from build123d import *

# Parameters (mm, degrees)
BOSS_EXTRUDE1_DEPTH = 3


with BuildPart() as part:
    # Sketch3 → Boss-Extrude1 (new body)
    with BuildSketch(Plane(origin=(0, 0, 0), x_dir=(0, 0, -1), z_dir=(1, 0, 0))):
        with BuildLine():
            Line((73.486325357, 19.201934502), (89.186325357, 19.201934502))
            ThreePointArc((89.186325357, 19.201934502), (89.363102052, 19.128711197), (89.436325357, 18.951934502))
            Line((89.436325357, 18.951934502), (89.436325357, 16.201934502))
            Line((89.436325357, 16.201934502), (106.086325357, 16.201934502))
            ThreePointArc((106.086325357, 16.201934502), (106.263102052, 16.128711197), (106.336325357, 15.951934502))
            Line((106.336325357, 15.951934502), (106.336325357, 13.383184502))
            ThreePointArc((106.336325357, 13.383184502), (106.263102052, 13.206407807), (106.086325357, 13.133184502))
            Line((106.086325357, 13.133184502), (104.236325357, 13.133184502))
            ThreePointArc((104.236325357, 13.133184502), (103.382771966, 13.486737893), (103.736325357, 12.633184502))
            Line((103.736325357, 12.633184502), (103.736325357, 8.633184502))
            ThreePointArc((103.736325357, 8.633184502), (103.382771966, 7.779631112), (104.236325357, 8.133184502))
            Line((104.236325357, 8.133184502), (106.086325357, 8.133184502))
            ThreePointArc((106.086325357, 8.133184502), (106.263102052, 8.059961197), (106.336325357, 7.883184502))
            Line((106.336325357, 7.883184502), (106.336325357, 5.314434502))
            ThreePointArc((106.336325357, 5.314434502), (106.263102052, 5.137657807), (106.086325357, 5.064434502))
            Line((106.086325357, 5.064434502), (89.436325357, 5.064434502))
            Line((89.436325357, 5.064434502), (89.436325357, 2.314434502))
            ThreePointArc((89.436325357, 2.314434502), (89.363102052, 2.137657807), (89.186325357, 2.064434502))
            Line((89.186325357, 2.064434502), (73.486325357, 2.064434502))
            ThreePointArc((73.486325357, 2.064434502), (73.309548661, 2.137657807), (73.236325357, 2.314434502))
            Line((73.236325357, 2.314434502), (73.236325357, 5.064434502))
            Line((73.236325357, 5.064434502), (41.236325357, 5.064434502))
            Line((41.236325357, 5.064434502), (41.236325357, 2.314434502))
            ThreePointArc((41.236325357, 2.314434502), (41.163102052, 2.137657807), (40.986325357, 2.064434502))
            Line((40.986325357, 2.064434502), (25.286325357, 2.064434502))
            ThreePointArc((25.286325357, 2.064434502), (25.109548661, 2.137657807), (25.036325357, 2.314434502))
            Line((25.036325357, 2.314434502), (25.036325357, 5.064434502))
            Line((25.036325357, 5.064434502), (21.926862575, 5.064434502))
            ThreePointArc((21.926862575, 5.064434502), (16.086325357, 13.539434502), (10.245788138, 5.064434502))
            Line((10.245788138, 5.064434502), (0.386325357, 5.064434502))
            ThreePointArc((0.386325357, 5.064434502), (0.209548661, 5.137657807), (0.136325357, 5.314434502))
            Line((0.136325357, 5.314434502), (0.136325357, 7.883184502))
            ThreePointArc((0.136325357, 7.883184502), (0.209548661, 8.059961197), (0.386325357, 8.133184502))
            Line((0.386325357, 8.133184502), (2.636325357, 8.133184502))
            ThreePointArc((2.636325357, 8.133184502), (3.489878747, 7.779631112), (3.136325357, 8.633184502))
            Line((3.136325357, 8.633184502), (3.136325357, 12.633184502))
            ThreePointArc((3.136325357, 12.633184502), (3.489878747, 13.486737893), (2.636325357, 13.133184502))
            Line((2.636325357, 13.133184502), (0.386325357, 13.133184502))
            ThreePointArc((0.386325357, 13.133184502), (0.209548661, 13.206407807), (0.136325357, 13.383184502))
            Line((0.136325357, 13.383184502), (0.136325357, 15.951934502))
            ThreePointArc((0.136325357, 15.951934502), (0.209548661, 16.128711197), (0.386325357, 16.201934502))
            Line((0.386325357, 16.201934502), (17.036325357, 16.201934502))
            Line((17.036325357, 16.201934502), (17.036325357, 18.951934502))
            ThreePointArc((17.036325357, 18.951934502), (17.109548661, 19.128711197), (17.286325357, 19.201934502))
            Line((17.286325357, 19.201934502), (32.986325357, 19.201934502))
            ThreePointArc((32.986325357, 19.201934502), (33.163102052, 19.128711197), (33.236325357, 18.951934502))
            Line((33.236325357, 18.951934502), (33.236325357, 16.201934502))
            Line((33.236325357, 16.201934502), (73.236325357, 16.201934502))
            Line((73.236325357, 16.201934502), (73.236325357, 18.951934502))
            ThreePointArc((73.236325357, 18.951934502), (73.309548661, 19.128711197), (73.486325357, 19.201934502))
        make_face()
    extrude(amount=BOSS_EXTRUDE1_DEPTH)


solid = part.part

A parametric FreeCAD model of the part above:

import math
import FreeCAD as App
import Part
import Sketcher

V = App.Vector

doc = App.newDocument("Part")
params = doc.addObject("Spreadsheet::Sheet", "Params")
for row, (alias, value) in enumerate([
    ("sketch1_radius", "0.5 mm"),
    ("sketch1_width", "4 mm"),
    ("sketch1_height", "40 mm"),
    ("sketch1_height2", "32 mm"),
    ("sketch1_radius2", "0.25 mm"),
    ("pad1_length", "3 mm"),
], start=1):
    params.set(f"A{row}", alias)
    params.set(f"B{row}", "=" + value)
    params.setAlias(f"B{row}", alias)

body = doc.addObject("PartDesign::Body", "Body")

sketch1 = body.newObject("Sketcher::SketchObject", "Sketch")
sketch1.AttachmentSupport = (doc.getObject("YZ_Plane"), [""])
sketch1.MapMode = "FlatFace"
sketch1.addGeometry(Part.LineSegment(V(19.2, -89.19, 0), V(19.2, -73.49, 0)), False)
sketch1.addGeometry(Part.ArcOfCircle(Part.Circle(V(18.95, -73.49, 0), V(0, 0, 1), 0.25), math.radians(0), math.radians(90)), False)
sketch1.addGeometry(Part.LineSegment(V(18.95, -73.24, 0), V(16.2, -73.24, 0)), False)
sketch1.addGeometry(Part.LineSegment(V(16.2, -73.24, 0), V(16.2, -33.24, 0)), False)
sketch1.addGeometry(Part.LineSegment(V(16.2, -33.24, 0), V(18.95, -33.24, 0)), False)
sketch1.addGeometry(Part.ArcOfCircle(Part.Circle(V(18.95, -32.99, 0), V(0, 0, 1), 0.25), math.radians(-90), math.radians(0)), False)
sketch1.addGeometry(Part.LineSegment(V(19.2, -32.99, 0), V(19.2, -17.29, 0)), False)
sketch1.addGeometry(Part.ArcOfCircle(Part.Circle(V(18.95, -17.29, 0), V(0, 0, 1), 0.25), math.radians(0), math.radians(90)), False)
sketch1.addGeometry(Part.LineSegment(V(18.95, -17.04, 0), V(16.2, -17.04, 0)), False)
sketch1.addGeometry(Part.LineSegment(V(16.2, -17.04, 0), V(16.2, -0.39, 0)), False)
sketch1.addGeometry(Part.ArcOfCircle(Part.Circle(V(15.95, -0.39, 0), V(0, 0, 1), 0.25), math.radians(0), math.radians(90)), False)
sketch1.addGeometry(Part.LineSegment(V(15.95, -0.14, 0), V(13.38, -0.14, 0)), False)
sketch1.addGeometry(Part.ArcOfCircle(Part.Circle(V(13.38, -0.39, 0), V(0, 0, 1), 0.25), math.radians(90), math.radians(180)), False)
sketch1.addGeometry(Part.LineSegment(V(13.13, -0.39, 0), V(13.13, -2.64, 0)), False)
sketch1.addGeometry(Part.ArcOfCircle(Part.Circle(V(13.13, -3.14, 0), V(0, 0, 1), 0.5), math.radians(180), math.radians(450)), False)
sketch1.addGeometry(Part.LineSegment(V(12.63, -3.14, 0), V(8.63, -3.14, 0)), False)
sketch1.addGeometry(Part.ArcOfCircle(Part.Circle(V(8.13, -3.14, 0), V(0, 0, 1), 0.5), math.radians(90), math.radians(360)), False)
sketch1.addGeometry(Part.LineSegment(V(8.13, -2.64, 0), V(8.13, -0.39, 0)), False)
sketch1.addGeometry(Part.ArcOfCircle(Part.Circle(V(7.88, -0.39, 0), V(0, 0, 1), 0.25), math.radians(0), math.radians(90)), False)
sketch1.addGeometry(Part.LineSegment(V(7.88, -0.14, 0), V(5.31, -0.14, 0)), False)
sketch1.addGeometry(Part.ArcOfCircle(Part.Circle(V(5.31, -0.39, 0), V(0, 0, 1), 0.25), math.radians(90), math.radians(180)), False)
sketch1.addGeometry(Part.LineSegment(V(5.06, -0.39, 0), V(5.06, -10.25, 0)), False)
sketch1.addGeometry(Part.ArcOfCircle(Part.Circle(V(7.29, -16.09, 0), V(0, 0, 1), 6.25), math.radians(-111), math.radians(111)), False)
sketch1.addGeometry(Part.LineSegment(V(5.06, -21.93, 0), V(5.06, -25.04, 0)), False)
sketch1.addGeometry(Part.LineSegment(V(5.06, -25.04, 0), V(2.31, -25.04, 0)), False)
sketch1.addGeometry(Part.ArcOfCircle(Part.Circle(V(2.31, -25.29, 0), V(0, 0, 1), 0.25), math.radians(90), math.radians(180)), False)
sketch1.addGeometry(Part.LineSegment(V(2.06, -25.29, 0), V(2.06, -40.99, 0)), False)
sketch1.addGeometry(Part.ArcOfCircle(Part.Circle(V(2.31, -40.99, 0), V(0, 0, 1), 0.25), math.radians(-180), math.radians(-90)), False)
sketch1.addGeometry(Part.LineSegment(V(2.31, -41.24, 0), V(5.06, -41.24, 0)), False)
sketch1.addGeometry(Part.LineSegment(V(5.06, -41.24, 0), V(5.06, -73.24, 0)), False)
sketch1.addGeometry(Part.LineSegment(V(5.06, -73.24, 0), V(2.31, -73.24, 0)), False)
sketch1.addGeometry(Part.ArcOfCircle(Part.Circle(V(2.31, -73.49, 0), V(0, 0, 1), 0.25), math.radians(90), math.radians(180)), False)
sketch1.addGeometry(Part.LineSegment(V(2.06, -73.49, 0), V(2.06, -89.19, 0)), False)
sketch1.addGeometry(Part.ArcOfCircle(Part.Circle(V(2.31, -89.19, 0), V(0, 0, 1), 0.25), math.radians(-180), math.radians(-90)), False)
sketch1.addGeometry(Part.LineSegment(V(2.31, -89.44, 0), V(5.06, -89.44, 0)), False)
sketch1.addGeometry(Part.LineSegment(V(5.06, -89.44, 0), V(5.06, -106.09, 0)), False)
sketch1.addGeometry(Part.ArcOfCircle(Part.Circle(V(5.31, -106.09, 0), V(0, 0, 1), 0.25), math.radians(-180), math.radians(-90)), False)
sketch1.addGeometry(Part.LineSegment(V(5.31, -106.34, 0), V(7.88, -106.34, 0)), False)
sketch1.addGeometry(Part.ArcOfCircle(Part.Circle(V(7.88, -106.09, 0), V(0, 0, 1), 0.25), math.radians(-90), math.radians(0)), False)
sketch1.addGeometry(Part.LineSegment(V(8.13, -106.09, 0), V(8.13, -104.24, 0)), False)
sketch1.addGeometry(Part.ArcOfCircle(Part.Circle(V(8.13, -103.74, 0), V(0, 0, 1), 0.5), math.radians(0), math.radians(270)), False)
sketch1.addGeometry(Part.LineSegment(V(8.63, -103.74, 0), V(12.63, -103.74, 0)), False)
sketch1.addGeometry(Part.ArcOfCircle(Part.Circle(V(13.13, -103.74, 0), V(0, 0, 1), 0.5), math.radians(-90), math.radians(180)), False)
sketch1.addGeometry(Part.LineSegment(V(13.13, -104.24, 0), V(13.13, -106.09, 0)), False)
sketch1.addGeometry(Part.ArcOfCircle(Part.Circle(V(13.38, -106.09, 0), V(0, 0, 1), 0.25), math.radians(-180), math.radians(-90)), False)
sketch1.addGeometry(Part.LineSegment(V(13.38, -106.34, 0), V(15.95, -106.34, 0)), False)
sketch1.addGeometry(Part.ArcOfCircle(Part.Circle(V(15.95, -106.09, 0), V(0, 0, 1), 0.25), math.radians(-90), math.radians(0)), False)
sketch1.addGeometry(Part.LineSegment(V(16.2, -106.09, 0), V(16.2, -89.44, 0)), False)
sketch1.addGeometry(Part.LineSegment(V(16.2, -89.44, 0), V(18.95, -89.44, 0)), False)
sketch1.addGeometry(Part.ArcOfCircle(Part.Circle(V(18.95, -89.19, 0), V(0, 0, 1), 0.25), math.radians(-90), math.radians(0)), False)
sketch1.addConstraint(Sketcher.Constraint("Tangent", 0, 2, 1, 1))
sketch1.addConstraint(Sketcher.Constraint("Tangent", 1, 2, 2, 1))
sketch1.addConstraint(Sketcher.Constraint("Coincident", 2, 2, 3, 1))
sketch1.addConstraint(Sketcher.Constraint("Coincident", 3, 2, 4, 1))
sketch1.addConstraint(Sketcher.Constraint("Tangent", 4, 2, 5, 1))
sketch1.addConstraint(Sketcher.Constraint("Tangent", 5, 2, 6, 1))
sketch1.addConstraint(Sketcher.Constraint("Tangent", 6, 2, 7, 1))
sketch1.addConstraint(Sketcher.Constraint("Tangent", 7, 2, 8, 1))
sketch1.addConstraint(Sketcher.Constraint("Coincident", 8, 2, 9, 1))
sketch1.addConstraint(Sketcher.Constraint("Tangent", 9, 2, 10, 1))
sketch1.addConstraint(Sketcher.Constraint("Tangent", 10, 2, 11, 1))
sketch1.addConstraint(Sketcher.Constraint("Tangent", 11, 2, 12, 1))
sketch1.addConstraint(Sketcher.Constraint("Tangent", 12, 2, 13, 1))
sketch1.addConstraint(Sketcher.Constraint("Coincident", 13, 2, 14, 2))
sketch1.addConstraint(Sketcher.Constraint("Coincident", 14, 1, 15, 1))
sketch1.addConstraint(Sketcher.Constraint("Coincident", 15, 2, 16, 2))
sketch1.addConstraint(Sketcher.Constraint("Coincident", 16, 1, 17, 1))
sketch1.addConstraint(Sketcher.Constraint("Tangent", 17, 2, 18, 1))
sketch1.addConstraint(Sketcher.Constraint("Tangent", 18, 2, 19, 1))
sketch1.addConstraint(Sketcher.Constraint("Tangent", 19, 2, 20, 1))
sketch1.addConstraint(Sketcher.Constraint("Tangent", 20, 2, 21, 1))
sketch1.addConstraint(Sketcher.Constraint("Coincident", 21, 2, 22, 2))
sketch1.addConstraint(Sketcher.Constraint("Coincident", 22, 1, 23, 1))
sketch1.addConstraint(Sketcher.Constraint("Coincident", 23, 2, 24, 1))
sketch1.addConstraint(Sketcher.Constraint("Tangent", 24, 2, 25, 1))
sketch1.addConstraint(Sketcher.Constraint("Tangent", 25, 2, 26, 1))
sketch1.addConstraint(Sketcher.Constraint("Tangent", 26, 2, 27, 1))
sketch1.addConstraint(Sketcher.Constraint("Tangent", 27, 2, 28, 1))
sketch1.addConstraint(Sketcher.Constraint("Coincident", 28, 2, 29, 1))
sketch1.addConstraint(Sketcher.Constraint("Coincident", 29, 2, 30, 1))
sketch1.addConstraint(Sketcher.Constraint("Tangent", 30, 2, 31, 1))
sketch1.addConstraint(Sketcher.Constraint("Tangent", 31, 2, 32, 1))
sketch1.addConstraint(Sketcher.Constraint("Tangent", 32, 2, 33, 1))
sketch1.addConstraint(Sketcher.Constraint("Tangent", 33, 2, 34, 1))
sketch1.addConstraint(Sketcher.Constraint("Coincident", 34, 2, 35, 1))
sketch1.addConstraint(Sketcher.Constraint("Tangent", 35, 2, 36, 1))
sketch1.addConstraint(Sketcher.Constraint("Tangent", 36, 2, 37, 1))
sketch1.addConstraint(Sketcher.Constraint("Tangent", 37, 2, 38, 1))
sketch1.addConstraint(Sketcher.Constraint("Tangent", 38, 2, 39, 1))
sketch1.addConstraint(Sketcher.Constraint("Coincident", 39, 2, 40, 2))
sketch1.addConstraint(Sketcher.Constraint("Coincident", 40, 1, 41, 1))
sketch1.addConstraint(Sketcher.Constraint("Coincident", 41, 2, 42, 2))
sketch1.addConstraint(Sketcher.Constraint("Coincident", 42, 1, 43, 1))
sketch1.addConstraint(Sketcher.Constraint("Tangent", 43, 2, 44, 1))
sketch1.addConstraint(Sketcher.Constraint("Tangent", 44, 2, 45, 1))
sketch1.addConstraint(Sketcher.Constraint("Tangent", 45, 2, 46, 1))
sketch1.addConstraint(Sketcher.Constraint("Tangent", 46, 2, 47, 1))
sketch1.addConstraint(Sketcher.Constraint("Coincident", 47, 2, 48, 1))
sketch1.addConstraint(Sketcher.Constraint("Tangent", 48, 2, 49, 1))
sketch1.addConstraint(Sketcher.Constraint("Tangent", 49, 2, 0, 1))
sketch1.addConstraint(Sketcher.Constraint("Vertical", 0))
sketch1.addConstraint(Sketcher.Constraint("Horizontal", 2))
sketch1.addConstraint(Sketcher.Constraint("Vertical", 3))
sketch1.addConstraint(Sketcher.Constraint("Horizontal", 4))
sketch1.addConstraint(Sketcher.Constraint("Vertical", 6))
sketch1.addConstraint(Sketcher.Constraint("Horizontal", 8))
sketch1.addConstraint(Sketcher.Constraint("Vertical", 9))
sketch1.addConstraint(Sketcher.Constraint("Horizontal", 11))
sketch1.addConstraint(Sketcher.Constraint("Vertical", 13))
sketch1.addConstraint(Sketcher.Constraint("Horizontal", 15))
sketch1.addConstraint(Sketcher.Constraint("Vertical", 17))
sketch1.addConstraint(Sketcher.Constraint("Horizontal", 19))
sketch1.addConstraint(Sketcher.Constraint("Vertical", 21))
sketch1.addConstraint(Sketcher.Constraint("Vertical", 23))
sketch1.addConstraint(Sketcher.Constraint("Horizontal", 24))
sketch1.addConstraint(Sketcher.Constraint("Vertical", 26))
sketch1.addConstraint(Sketcher.Constraint("Horizontal", 28))
sketch1.addConstraint(Sketcher.Constraint("Vertical", 29))
sketch1.addConstraint(Sketcher.Constraint("Horizontal", 30))
sketch1.addConstraint(Sketcher.Constraint("Vertical", 32))
sketch1.addConstraint(Sketcher.Constraint("Horizontal", 34))
sketch1.addConstraint(Sketcher.Constraint("Vertical", 35))
sketch1.addConstraint(Sketcher.Constraint("Horizontal", 37))
sketch1.addConstraint(Sketcher.Constraint("Vertical", 39))
sketch1.addConstraint(Sketcher.Constraint("Horizontal", 41))
sketch1.addConstraint(Sketcher.Constraint("Vertical", 43))
sketch1.addConstraint(Sketcher.Constraint("Horizontal", 45))
sketch1.addConstraint(Sketcher.Constraint("Vertical", 47))
sketch1.addConstraint(Sketcher.Constraint("Horizontal", 48))
sketch1.addConstraint(Sketcher.Constraint("Equal", 1, 5))
sketch1.addConstraint(Sketcher.Constraint("Equal", 5, 7))
sketch1.addConstraint(Sketcher.Constraint("Equal", 7, 10))
sketch1.addConstraint(Sketcher.Constraint("Equal", 10, 12))
sketch1.addConstraint(Sketcher.Constraint("Equal", 14, 16))
sketch1.addConstraint(Sketcher.Constraint("Equal", 12, 18))
sketch1.addConstraint(Sketcher.Constraint("Equal", 18, 20))
sketch1.addConstraint(Sketcher.Constraint("Equal", 20, 25))
sketch1.addConstraint(Sketcher.Constraint("Equal", 25, 27))
sketch1.addConstraint(Sketcher.Constraint("Equal", 27, 31))
sketch1.addConstraint(Sketcher.Constraint("Equal", 31, 33))
sketch1.addConstraint(Sketcher.Constraint("Equal", 33, 36))
sketch1.addConstraint(Sketcher.Constraint("Equal", 36, 38))
sketch1.addConstraint(Sketcher.Constraint("Equal", 16, 40))
sketch1.addConstraint(Sketcher.Constraint("Equal", 40, 42))
sketch1.addConstraint(Sketcher.Constraint("Equal", 38, 44))
sketch1.addConstraint(Sketcher.Constraint("Equal", 44, 46))
sketch1.addConstraint(Sketcher.Constraint("Equal", 46, 49))
sketch1.addConstraint(Sketcher.Constraint("Horizontal", 14, 3, 16, 3))
sketch1.addConstraint(Sketcher.Constraint("Horizontal", 12, 3, 18, 3))
sketch1.addConstraint(Sketcher.Constraint("Horizontal", 1, 3, 31, 3))
sketch1.addConstraint(Sketcher.Constraint("Horizontal", 40, 3, 42, 3))
sketch1.addConstraint(Sketcher.Constraint("Horizontal", 38, 3, 44, 3))
sketch1.addConstraint(Sketcher.Constraint("Horizontal", 33, 3, 49, 3))
sketch1.addConstraint(Sketcher.Constraint("Horizontal", 16, 3, 14, 1))
sketch1.addConstraint(Sketcher.Constraint("Horizontal", 42, 3, 40, 1))
sketch1.addConstraint(Sketcher.Constraint("Vertical", 1, 3, 5, 3))
sketch1.addConstraint(Sketcher.Constraint("Vertical", 27, 3, 31, 3))
sketch1.addConstraint(Sketcher.Constraint("Vertical", 20, 3, 36, 3))
sketch1.addConstraint(Sketcher.Constraint("Vertical", 18, 3, 38, 3))
sketch1.addConstraint(Sketcher.Constraint("Vertical", 16, 3, 40, 3))
sketch1.addConstraint(Sketcher.Constraint("Vertical", 14, 3, 42, 3))
sketch1.addConstraint(Sketcher.Constraint("Vertical", 12, 3, 44, 3))
sketch1.addConstraint(Sketcher.Constraint("Vertical", 10, 3, 46, 3))
sketch1.addConstraint(Sketcher.Constraint("Vertical", 3, 2, 8, 2))
sketch1.addConstraint(Sketcher.Constraint("Vertical", 42, 3, 12, 2))
sketch1.addConstraint(Sketcher.Constraint("Vertical", 40, 3, 16, 1))
sketch1.addConstraint(Sketcher.Constraint("Vertical", 21, 2, 22, 1))
sketch1.addConstraint(Sketcher.Constraint("Vertical", 23, 2, 28, 2))
sketch1.addConstraint(Sketcher.Constraint("Equal", 11, 19))
sketch1.addConstraint(Sketcher.Constraint("Equal", 8, 24))
sketch1.addConstraint(Sketcher.Constraint("Equal", 0, 6))
sketch1.addConstraint(Sketcher.Constraint("Equal", 6, 26))
sketch1.addConstraint(Sketcher.Constraint("Equal", 9, 35))
sketch1.addConstraint(Sketcher.Constraint("Radius", 14, 0.5))
sketch1.addConstraint(Sketcher.Constraint("DistanceX", 15, 2, 15, 1, 4.0))
sketch1.addConstraint(Sketcher.Constraint("DistanceY", 3, 1, 3, 2, 40.0))
sketch1.addConstraint(Sketcher.Constraint("DistanceY", 29, 2, 29, 1, 32.0))
sketch1.addConstraint(Sketcher.Constraint("Radius", 1, 0.25))
sketch1.addConstraint(Sketcher.Constraint("Radius", 22, 6.25))
sketch1.addConstraint(Sketcher.Constraint("DistanceY", 0, 1, 0, 2, 15.7))
sketch1.addConstraint(Sketcher.Constraint("DistanceX", 2, 2, 2, 1, 2.75))
sketch1.addConstraint(Sketcher.Constraint("DistanceY", 9, 1, 9, 2, 16.65))
sketch1.addConstraint(Sketcher.Constraint("DistanceY", 13, 2, 13, 1, 2.25))
sketch1.addConstraint(Sketcher.Constraint("DistanceY", 39, 1, 39, 2, 1.85))
sketch1.addConstraint(Sketcher.Constraint("DistanceX", 11, 2, 11, 1, 2.56875))
sketch1.addConstraint(Sketcher.Constraint("DistanceY", 21, 2, 21, 1, 9.859463))
sketch1.addConstraint(Sketcher.Constraint("DistanceY", 23, 2, 23, 1, 3.109463))
sketch1.addConstraint(Sketcher.Constraint("DistanceY", 21, 2, -1, 1, 10.245788))
sketch1.addConstraint(Sketcher.Constraint("DistanceX", -1, 1, 1, 3, 18.951935))
sketch1.setExpression("Constraints[123]", "Params.sketch1_radius")
sketch1.setExpression("Constraints[124]", "Params.sketch1_width")
sketch1.setExpression("Constraints[125]", "Params.sketch1_height")
sketch1.setExpression("Constraints[126]", "Params.sketch1_height2")
sketch1.setExpression("Constraints[127]", "Params.sketch1_radius2")
pad1 = body.newObject("PartDesign::Pad", "Pad")
pad1.Profile = sketch1
pad1.setExpression("Length", "Params.pad1_length")

doc.recompute()
